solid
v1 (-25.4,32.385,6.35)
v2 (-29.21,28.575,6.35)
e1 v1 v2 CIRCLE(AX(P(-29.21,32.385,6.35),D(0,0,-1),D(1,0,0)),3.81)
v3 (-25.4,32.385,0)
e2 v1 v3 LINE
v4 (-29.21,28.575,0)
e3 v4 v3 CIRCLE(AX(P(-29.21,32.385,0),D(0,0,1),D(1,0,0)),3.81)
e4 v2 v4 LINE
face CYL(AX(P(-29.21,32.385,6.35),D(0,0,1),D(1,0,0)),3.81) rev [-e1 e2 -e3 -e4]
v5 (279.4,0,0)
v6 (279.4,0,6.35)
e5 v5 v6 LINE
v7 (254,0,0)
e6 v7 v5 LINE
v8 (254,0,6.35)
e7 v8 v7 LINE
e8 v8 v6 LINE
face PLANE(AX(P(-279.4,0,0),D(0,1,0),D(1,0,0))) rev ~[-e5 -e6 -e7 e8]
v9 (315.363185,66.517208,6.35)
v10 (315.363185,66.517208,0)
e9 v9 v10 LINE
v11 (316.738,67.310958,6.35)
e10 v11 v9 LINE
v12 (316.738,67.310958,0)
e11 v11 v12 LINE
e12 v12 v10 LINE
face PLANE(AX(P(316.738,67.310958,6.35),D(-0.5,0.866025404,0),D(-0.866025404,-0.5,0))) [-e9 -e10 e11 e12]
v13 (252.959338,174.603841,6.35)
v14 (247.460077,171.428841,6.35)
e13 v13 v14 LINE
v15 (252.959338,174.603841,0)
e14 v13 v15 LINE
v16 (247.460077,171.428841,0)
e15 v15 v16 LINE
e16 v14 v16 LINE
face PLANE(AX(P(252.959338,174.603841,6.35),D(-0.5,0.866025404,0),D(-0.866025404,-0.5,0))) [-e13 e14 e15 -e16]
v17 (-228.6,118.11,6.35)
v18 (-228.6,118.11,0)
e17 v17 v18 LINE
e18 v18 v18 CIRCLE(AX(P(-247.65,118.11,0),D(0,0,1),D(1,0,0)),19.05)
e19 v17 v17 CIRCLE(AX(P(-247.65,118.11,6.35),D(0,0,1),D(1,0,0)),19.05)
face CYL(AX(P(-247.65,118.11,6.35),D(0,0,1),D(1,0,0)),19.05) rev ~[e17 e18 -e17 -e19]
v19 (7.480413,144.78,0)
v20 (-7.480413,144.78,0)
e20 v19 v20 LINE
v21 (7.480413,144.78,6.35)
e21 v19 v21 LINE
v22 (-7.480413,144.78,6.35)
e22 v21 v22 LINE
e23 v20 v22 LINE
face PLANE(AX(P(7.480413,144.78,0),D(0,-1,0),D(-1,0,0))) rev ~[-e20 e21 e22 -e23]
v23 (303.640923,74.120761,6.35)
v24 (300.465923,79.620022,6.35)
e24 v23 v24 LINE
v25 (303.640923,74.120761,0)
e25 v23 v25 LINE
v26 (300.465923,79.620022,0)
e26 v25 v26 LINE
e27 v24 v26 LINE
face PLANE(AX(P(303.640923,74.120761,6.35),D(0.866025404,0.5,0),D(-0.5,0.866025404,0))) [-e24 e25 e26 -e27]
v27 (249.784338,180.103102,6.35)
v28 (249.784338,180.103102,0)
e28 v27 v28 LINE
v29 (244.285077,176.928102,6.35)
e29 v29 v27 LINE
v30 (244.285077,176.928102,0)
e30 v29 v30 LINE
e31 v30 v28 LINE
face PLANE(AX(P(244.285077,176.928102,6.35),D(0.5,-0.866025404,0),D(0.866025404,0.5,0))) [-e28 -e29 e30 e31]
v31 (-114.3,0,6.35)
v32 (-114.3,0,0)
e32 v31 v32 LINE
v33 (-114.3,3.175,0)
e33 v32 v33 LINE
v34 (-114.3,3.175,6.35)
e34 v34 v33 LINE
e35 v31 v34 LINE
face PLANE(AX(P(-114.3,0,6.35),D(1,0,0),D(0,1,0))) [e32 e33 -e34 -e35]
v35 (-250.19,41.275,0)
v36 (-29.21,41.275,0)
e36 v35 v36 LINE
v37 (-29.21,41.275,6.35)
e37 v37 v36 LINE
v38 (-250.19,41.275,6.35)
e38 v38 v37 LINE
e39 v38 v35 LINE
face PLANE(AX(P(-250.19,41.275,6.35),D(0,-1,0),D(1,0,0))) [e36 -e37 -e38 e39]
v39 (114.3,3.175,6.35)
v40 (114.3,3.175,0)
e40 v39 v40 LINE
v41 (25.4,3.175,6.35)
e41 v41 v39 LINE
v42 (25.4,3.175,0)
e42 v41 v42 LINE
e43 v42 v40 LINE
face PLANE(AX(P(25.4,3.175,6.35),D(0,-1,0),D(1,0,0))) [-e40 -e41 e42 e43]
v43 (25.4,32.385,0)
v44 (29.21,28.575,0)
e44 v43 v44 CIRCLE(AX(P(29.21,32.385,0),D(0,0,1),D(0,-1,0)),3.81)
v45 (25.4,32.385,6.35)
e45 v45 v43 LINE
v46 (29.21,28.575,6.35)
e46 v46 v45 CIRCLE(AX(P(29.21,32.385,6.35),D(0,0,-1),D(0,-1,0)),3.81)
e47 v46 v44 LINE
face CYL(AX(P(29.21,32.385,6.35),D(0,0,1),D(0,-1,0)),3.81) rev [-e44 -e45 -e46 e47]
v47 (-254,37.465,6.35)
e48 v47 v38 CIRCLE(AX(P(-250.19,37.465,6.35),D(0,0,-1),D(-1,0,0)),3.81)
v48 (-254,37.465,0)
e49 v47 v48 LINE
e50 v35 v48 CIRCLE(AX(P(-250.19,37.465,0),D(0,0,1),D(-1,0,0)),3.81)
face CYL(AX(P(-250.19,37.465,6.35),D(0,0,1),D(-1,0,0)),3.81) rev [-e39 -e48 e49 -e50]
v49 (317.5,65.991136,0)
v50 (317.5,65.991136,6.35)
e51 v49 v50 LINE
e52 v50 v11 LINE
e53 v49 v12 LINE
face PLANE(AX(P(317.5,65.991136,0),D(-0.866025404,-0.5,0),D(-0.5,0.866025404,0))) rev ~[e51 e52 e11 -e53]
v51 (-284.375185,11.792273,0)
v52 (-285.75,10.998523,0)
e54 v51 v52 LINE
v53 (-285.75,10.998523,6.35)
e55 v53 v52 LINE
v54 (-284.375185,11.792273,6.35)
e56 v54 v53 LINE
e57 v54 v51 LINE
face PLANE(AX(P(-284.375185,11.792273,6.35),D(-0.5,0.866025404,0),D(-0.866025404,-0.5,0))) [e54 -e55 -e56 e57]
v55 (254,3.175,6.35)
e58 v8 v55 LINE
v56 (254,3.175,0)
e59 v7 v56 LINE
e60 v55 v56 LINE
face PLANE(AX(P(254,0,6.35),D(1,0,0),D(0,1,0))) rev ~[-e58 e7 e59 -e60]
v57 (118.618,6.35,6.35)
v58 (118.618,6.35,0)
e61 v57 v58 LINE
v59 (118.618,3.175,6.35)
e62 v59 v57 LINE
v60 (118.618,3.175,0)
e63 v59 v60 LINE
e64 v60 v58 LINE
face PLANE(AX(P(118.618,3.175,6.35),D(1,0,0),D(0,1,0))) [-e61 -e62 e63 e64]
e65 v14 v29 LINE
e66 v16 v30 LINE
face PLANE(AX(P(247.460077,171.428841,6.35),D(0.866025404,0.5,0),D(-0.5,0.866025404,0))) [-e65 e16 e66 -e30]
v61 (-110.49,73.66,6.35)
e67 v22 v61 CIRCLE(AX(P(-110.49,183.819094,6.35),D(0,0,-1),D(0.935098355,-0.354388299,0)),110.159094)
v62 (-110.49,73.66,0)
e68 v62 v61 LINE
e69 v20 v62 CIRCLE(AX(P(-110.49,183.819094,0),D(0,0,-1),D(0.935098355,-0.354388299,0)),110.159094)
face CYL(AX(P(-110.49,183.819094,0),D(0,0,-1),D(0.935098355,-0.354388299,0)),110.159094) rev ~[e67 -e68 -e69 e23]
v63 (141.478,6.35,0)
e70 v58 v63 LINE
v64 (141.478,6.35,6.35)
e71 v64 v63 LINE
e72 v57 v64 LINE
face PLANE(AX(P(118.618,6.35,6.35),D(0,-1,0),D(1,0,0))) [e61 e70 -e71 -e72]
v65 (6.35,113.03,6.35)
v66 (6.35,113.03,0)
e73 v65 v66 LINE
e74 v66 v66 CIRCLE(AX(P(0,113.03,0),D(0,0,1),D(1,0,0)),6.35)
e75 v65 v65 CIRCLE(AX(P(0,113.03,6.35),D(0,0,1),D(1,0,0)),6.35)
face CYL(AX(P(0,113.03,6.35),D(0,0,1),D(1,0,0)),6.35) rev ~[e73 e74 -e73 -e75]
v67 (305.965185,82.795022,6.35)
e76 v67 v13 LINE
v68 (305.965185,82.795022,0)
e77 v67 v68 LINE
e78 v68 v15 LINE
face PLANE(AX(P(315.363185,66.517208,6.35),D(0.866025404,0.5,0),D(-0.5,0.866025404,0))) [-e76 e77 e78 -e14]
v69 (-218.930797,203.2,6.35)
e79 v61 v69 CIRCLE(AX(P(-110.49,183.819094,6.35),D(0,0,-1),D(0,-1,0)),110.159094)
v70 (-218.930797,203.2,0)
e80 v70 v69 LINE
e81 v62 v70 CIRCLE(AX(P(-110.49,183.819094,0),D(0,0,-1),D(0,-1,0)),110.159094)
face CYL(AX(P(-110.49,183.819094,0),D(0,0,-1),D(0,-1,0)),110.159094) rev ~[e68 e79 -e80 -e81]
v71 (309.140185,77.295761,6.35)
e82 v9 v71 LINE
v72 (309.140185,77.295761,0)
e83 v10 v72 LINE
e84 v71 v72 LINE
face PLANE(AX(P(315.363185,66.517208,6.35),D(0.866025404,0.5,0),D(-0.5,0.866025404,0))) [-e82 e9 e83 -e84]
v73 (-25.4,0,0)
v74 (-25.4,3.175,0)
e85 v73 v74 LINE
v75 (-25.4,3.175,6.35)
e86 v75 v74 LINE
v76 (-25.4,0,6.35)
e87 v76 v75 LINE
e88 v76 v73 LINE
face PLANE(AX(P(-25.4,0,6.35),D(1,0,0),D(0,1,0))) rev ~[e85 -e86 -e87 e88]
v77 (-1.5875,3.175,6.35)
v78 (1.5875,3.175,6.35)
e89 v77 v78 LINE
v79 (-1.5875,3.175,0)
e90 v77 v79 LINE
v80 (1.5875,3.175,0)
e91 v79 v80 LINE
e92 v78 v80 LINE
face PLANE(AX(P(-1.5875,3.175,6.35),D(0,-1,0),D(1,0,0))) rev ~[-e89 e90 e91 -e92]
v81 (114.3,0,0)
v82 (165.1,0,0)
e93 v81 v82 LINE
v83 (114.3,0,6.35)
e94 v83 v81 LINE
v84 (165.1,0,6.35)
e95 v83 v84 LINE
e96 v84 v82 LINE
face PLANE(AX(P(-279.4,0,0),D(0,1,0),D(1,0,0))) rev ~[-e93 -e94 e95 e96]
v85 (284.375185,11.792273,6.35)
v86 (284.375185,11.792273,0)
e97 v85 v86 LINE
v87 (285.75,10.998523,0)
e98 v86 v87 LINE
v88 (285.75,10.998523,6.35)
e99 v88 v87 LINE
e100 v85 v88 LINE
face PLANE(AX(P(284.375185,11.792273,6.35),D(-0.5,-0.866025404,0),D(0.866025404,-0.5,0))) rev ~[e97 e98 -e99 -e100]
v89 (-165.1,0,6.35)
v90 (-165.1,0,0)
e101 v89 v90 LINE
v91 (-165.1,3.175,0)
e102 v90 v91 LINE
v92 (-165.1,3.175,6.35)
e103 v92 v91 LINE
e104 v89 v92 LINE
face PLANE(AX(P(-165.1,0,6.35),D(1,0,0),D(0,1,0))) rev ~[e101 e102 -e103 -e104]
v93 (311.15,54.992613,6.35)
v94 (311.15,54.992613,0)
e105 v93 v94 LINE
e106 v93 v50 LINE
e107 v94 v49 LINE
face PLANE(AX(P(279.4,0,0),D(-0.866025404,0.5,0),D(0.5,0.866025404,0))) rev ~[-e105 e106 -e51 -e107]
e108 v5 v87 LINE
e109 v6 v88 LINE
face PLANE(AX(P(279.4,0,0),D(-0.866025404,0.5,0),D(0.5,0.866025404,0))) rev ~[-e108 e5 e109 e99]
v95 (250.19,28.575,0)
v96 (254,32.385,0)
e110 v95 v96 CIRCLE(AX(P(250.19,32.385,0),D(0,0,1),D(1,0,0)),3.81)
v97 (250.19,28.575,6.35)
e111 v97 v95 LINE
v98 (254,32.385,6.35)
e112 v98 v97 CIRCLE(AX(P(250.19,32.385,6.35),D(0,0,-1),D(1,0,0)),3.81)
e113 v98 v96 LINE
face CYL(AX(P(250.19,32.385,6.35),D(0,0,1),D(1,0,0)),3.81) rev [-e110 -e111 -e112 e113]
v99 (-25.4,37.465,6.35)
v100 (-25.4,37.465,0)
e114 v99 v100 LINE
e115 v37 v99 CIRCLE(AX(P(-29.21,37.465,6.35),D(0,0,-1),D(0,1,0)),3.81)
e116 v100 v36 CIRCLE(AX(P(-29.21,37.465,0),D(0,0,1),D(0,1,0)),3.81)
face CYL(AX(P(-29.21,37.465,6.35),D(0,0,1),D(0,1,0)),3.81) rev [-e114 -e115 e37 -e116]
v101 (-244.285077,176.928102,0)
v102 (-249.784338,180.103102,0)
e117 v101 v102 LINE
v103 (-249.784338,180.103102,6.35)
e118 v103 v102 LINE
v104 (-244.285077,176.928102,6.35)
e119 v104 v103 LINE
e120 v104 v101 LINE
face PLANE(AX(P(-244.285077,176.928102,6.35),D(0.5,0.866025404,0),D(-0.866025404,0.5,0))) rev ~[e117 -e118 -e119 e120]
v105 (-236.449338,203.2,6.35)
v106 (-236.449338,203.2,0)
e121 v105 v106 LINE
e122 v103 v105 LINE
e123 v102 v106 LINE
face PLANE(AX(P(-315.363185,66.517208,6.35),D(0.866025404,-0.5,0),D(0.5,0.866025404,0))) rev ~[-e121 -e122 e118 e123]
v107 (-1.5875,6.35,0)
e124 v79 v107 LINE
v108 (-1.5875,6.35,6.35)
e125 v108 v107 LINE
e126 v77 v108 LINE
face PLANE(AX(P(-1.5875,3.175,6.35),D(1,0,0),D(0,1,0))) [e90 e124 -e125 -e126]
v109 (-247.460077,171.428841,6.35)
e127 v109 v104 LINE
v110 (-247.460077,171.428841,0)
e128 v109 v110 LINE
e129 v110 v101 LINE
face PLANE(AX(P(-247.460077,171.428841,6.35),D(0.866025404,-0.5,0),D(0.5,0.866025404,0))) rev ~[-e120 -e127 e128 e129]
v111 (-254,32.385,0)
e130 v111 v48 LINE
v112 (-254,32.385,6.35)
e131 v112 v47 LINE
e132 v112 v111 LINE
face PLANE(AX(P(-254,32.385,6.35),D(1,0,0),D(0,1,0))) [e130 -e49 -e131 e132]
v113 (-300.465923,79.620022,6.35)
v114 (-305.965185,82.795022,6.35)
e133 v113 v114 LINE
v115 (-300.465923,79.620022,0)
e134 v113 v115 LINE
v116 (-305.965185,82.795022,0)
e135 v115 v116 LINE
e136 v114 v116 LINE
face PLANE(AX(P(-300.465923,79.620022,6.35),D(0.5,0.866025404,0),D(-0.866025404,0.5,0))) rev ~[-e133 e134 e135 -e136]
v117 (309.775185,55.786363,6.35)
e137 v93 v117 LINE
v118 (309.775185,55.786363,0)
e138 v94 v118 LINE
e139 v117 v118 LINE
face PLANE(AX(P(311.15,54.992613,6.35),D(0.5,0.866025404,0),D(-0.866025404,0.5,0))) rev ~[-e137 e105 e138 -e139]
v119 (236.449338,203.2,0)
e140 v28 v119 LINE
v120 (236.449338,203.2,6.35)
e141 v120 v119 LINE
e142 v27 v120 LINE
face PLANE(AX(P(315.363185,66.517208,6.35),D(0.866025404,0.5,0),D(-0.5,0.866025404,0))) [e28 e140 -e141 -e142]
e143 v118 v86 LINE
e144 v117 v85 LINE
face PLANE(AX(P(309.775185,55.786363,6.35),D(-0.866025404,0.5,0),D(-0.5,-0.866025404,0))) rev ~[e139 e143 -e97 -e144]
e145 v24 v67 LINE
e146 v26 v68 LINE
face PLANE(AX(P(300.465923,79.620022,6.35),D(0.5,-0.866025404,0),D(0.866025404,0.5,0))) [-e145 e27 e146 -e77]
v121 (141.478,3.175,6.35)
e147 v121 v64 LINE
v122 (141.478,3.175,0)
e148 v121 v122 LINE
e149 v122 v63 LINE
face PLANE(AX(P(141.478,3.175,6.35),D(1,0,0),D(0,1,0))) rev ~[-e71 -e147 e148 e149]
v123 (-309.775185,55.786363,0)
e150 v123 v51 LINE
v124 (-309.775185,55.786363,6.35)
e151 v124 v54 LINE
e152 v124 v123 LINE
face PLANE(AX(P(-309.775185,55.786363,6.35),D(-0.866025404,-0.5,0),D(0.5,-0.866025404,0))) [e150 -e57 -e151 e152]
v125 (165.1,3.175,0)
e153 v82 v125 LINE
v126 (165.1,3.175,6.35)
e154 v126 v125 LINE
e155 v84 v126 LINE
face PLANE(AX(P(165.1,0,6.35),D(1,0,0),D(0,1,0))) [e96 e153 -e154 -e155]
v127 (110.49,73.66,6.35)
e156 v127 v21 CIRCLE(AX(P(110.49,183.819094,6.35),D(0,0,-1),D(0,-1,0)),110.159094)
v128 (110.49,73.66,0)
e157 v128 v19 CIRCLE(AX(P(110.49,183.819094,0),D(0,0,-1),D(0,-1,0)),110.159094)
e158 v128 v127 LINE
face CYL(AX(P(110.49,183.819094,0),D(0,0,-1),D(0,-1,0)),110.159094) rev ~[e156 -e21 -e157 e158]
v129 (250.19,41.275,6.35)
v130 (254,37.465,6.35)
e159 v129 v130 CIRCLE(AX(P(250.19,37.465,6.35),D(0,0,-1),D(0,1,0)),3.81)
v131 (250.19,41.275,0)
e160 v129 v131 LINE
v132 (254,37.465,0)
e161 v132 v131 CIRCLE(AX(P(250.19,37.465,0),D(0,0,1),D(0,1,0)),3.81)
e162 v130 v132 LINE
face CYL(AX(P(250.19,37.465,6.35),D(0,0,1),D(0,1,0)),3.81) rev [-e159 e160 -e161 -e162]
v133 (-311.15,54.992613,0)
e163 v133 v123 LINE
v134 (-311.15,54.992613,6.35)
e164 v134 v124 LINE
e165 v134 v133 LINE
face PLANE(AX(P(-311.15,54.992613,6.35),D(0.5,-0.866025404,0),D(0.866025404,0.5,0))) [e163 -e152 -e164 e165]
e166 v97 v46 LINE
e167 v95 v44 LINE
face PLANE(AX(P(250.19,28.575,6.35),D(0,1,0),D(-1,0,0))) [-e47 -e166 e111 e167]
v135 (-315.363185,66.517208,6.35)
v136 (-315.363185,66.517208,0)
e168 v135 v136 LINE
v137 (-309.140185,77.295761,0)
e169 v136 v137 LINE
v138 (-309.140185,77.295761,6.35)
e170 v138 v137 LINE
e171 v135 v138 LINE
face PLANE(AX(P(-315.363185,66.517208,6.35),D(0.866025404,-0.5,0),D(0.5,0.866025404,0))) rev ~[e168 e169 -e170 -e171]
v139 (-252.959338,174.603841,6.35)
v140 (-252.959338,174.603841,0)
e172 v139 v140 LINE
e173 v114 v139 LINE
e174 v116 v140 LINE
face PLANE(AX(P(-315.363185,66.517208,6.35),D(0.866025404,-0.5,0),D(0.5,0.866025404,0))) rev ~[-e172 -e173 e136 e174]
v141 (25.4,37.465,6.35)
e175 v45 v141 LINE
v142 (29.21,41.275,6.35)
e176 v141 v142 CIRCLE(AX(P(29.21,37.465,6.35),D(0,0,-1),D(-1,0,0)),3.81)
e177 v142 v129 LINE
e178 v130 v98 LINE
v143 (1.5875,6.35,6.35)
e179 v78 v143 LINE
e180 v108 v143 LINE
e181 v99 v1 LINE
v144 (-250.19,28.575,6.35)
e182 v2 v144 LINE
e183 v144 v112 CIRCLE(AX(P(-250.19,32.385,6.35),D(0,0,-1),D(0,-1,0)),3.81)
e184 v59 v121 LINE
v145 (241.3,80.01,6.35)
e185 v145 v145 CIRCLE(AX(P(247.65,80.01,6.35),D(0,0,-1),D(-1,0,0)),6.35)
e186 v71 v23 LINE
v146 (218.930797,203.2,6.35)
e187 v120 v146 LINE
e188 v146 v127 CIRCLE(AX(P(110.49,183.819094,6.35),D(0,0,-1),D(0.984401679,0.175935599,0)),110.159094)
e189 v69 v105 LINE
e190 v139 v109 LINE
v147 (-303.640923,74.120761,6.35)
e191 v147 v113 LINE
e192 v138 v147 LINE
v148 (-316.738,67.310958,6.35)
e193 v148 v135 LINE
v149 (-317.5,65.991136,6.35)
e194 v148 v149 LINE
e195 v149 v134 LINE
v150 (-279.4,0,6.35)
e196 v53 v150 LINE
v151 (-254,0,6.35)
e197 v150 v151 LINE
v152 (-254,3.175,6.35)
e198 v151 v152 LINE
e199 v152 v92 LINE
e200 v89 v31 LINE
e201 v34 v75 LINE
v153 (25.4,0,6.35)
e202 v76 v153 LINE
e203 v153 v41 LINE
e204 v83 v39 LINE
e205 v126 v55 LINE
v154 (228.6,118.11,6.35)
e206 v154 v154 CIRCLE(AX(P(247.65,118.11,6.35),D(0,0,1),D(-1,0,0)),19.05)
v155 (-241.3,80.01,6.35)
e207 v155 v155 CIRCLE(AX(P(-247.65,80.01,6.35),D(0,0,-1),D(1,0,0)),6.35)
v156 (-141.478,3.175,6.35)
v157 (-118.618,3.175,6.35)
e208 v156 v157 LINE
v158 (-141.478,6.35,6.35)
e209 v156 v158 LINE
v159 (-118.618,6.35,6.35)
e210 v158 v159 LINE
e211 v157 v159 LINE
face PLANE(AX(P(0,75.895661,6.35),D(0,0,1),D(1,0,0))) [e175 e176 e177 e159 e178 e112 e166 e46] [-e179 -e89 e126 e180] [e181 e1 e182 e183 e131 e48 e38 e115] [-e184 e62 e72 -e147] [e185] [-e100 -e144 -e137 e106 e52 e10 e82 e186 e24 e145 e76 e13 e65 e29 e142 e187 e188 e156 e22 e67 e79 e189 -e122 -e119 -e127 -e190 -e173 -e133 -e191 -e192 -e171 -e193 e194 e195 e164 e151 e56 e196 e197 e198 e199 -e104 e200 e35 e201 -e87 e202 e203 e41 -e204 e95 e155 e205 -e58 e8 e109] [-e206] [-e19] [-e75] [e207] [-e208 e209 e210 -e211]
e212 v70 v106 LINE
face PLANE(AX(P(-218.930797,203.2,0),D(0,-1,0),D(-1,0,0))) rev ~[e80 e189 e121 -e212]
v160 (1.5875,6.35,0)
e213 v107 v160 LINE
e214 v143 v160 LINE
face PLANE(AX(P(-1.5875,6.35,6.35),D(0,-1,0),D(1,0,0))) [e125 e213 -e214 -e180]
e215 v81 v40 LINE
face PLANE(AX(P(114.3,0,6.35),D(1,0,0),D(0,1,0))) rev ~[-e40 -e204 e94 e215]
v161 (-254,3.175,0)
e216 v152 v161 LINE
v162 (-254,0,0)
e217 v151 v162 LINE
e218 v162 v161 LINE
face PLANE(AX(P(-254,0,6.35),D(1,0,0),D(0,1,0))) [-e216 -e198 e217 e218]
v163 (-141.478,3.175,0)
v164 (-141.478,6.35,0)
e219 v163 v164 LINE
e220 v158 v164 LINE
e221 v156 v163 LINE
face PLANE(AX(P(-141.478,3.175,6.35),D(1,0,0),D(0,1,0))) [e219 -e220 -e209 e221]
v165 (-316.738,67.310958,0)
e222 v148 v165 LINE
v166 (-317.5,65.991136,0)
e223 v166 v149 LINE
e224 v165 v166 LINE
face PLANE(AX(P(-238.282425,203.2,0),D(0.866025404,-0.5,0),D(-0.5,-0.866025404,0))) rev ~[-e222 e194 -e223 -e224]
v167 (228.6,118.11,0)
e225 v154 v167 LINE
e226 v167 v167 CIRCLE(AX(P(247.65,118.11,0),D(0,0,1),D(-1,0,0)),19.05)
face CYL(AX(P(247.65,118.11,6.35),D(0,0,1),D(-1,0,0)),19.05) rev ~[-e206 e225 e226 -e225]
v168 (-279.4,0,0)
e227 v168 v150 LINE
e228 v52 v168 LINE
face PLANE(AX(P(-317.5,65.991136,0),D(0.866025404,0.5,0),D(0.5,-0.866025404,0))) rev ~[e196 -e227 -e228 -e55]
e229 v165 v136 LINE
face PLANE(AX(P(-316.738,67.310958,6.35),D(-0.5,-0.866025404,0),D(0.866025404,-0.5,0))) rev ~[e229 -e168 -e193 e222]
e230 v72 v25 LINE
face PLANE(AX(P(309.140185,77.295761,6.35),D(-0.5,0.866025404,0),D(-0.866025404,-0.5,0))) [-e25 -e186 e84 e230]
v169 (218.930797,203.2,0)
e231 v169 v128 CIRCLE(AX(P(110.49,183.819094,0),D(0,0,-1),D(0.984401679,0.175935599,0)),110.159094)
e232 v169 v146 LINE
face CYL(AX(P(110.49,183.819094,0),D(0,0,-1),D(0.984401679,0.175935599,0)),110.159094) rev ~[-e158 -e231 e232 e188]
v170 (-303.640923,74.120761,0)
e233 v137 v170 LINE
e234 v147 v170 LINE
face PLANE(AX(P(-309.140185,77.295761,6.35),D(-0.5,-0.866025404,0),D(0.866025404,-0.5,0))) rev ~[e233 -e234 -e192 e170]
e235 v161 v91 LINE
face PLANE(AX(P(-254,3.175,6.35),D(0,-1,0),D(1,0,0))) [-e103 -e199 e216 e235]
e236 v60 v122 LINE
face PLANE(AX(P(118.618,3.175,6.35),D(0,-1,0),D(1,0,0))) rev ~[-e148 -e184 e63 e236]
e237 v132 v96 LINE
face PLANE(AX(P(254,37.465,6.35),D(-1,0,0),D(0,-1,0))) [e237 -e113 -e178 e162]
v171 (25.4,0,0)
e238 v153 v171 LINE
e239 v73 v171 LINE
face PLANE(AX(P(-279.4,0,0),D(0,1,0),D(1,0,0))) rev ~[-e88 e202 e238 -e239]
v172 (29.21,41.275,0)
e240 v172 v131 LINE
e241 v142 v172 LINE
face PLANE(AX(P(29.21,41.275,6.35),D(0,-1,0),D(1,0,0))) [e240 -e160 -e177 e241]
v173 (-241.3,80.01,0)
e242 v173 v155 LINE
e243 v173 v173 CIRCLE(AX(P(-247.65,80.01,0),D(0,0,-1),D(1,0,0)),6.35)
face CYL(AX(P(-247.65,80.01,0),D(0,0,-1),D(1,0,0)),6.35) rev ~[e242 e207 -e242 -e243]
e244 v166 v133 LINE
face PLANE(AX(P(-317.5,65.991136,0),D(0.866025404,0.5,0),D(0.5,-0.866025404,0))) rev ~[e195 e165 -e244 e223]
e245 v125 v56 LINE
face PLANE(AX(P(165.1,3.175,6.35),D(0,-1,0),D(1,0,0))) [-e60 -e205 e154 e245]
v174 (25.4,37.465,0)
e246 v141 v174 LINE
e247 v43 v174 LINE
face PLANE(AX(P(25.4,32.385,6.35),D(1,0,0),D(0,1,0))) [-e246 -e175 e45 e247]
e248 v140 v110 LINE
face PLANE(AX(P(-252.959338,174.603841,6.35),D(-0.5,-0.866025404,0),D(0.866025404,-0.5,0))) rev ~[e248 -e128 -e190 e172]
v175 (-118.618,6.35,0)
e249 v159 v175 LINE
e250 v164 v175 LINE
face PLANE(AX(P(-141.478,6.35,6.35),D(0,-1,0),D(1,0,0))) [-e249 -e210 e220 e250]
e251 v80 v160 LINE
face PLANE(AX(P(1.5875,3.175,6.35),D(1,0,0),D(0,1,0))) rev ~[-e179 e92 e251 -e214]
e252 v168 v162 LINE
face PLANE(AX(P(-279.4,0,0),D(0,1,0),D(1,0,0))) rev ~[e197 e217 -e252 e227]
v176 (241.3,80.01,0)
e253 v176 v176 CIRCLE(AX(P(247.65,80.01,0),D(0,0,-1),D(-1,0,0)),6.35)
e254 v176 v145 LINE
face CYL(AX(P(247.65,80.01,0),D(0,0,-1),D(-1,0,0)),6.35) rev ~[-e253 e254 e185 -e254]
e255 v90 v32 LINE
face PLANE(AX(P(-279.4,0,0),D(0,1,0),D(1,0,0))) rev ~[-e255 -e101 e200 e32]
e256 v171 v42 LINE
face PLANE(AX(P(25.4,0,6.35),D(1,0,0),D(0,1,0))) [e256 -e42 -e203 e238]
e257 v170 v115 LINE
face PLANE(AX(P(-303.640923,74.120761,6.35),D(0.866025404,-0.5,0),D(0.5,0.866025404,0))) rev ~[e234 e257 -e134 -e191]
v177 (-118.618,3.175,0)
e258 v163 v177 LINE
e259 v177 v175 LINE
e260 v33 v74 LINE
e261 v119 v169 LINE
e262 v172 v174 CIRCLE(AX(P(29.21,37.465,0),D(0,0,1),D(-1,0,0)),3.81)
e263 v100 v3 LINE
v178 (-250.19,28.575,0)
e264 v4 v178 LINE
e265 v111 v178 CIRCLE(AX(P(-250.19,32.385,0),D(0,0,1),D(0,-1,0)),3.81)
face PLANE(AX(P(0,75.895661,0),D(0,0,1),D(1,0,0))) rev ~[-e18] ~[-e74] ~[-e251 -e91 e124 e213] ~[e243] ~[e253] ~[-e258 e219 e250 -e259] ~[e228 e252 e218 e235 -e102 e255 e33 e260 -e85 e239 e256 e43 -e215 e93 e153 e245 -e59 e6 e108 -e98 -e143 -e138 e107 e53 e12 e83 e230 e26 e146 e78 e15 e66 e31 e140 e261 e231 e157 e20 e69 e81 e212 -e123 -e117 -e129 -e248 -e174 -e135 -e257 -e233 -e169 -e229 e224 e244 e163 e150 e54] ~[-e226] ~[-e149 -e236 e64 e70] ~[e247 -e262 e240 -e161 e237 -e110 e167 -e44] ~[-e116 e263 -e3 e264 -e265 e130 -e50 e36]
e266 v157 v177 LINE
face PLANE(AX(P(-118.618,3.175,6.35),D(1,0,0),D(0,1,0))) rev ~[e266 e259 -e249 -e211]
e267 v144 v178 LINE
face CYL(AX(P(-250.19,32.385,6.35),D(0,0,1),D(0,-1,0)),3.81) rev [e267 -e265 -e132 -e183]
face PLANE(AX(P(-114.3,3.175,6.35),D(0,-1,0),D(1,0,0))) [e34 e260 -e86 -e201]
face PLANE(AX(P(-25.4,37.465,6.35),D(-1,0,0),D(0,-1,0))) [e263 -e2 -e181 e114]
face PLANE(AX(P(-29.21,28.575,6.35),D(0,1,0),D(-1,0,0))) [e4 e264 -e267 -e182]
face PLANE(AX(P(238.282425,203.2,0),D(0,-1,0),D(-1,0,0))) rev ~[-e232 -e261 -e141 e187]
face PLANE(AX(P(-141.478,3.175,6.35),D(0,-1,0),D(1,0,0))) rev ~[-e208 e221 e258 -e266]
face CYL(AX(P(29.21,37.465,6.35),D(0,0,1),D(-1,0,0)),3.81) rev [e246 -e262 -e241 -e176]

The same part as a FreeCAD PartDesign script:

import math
import FreeCAD as App
import Part
import Sketcher

V = App.Vector
Q = App.Units.Quantity

doc = App.newDocument("Part")
body = doc.addObject("PartDesign::Body", "Body")

# Sketch on XY plane
sketch1 = doc.addObject("Sketcher::SketchObject", "Sketch")
body.addObject(sketch1)
sketch1.AttachmentSupport = (doc.XY_Plane, [""])
sketch1.MapMode = "FlatFace"
sketch1.addGeometry(Part.LineSegment(V(-317.5, 65.991136, 0), V(-279.4, 0, 0)), False)
sketch1.addGeometry(Part.LineSegment(V(-279.4, 0, 0), V(279.4, 0, 0)), False)
sketch1.addGeometry(Part.LineSegment(V(279.4, 0, 0), V(317.5, 65.991136, 0)), False)
sketch1.addGeometry(Part.LineSegment(V(317.5, 65.991136, 0), V(238.282425, 203.2, 0)), False)
sketch1.addGeometry(Part.LineSegment(V(238.282425, 203.2, 0), V(218.930797, 203.2, 0)), False)
sketch1.addGeometry(Part.ArcOfCircle(Part.Circle(V(110.49, 183.819094, 0), V(0, 0, 1), 110.159094), math.radians(-90), math.radians(10.133109)), False)
sketch1.addGeometry(Part.ArcOfCircle(Part.Circle(V(110.49, 183.819094, 0), V(0, 0, 1), 110.159094), math.radians(-159.244041), math.radians(-90)), False)
sketch1.addGeometry(Part.LineSegment(V(7.480413, 144.78, 0), V(-7.480413, 144.78, 0)), False)
sketch1.addGeometry(Part.ArcOfCircle(Part.Circle(V(-110.49, 183.819094, 0), V(0, 0, 1), 110.159094), math.radians(-90), math.radians(-20.755959)), False)
sketch1.addGeometry(Part.ArcOfCircle(Part.Circle(V(-110.49, 183.819094, 0), V(0, 0, 1), 110.159094), math.radians(169.866891), math.radians(270)), False)
sketch1.addGeometry(Part.LineSegment(V(-218.930797, 203.2, 0), V(-238.282425, 203.2, 0)), False)
sketch1.addGeometry(Part.LineSegment(V(-238.282425, 203.2, 0), V(-317.5, 65.991136, 0)), False)
sketch1.addConstraint(Sketcher.Constraint("Coincident", 0, 2, 1, 1))
sketch1.addConstraint(Sketcher.Constraint("Coincident", 1, 2, 2, 1))
sketch1.addConstraint(Sketcher.Constraint("Coincident", 2, 2, 3, 1))
sketch1.addConstraint(Sketcher.Constraint("Coincident", 3, 2, 4, 1))
sketch1.addConstraint(Sketcher.Constraint("Coincident", 4, 2, 5, 2))
sketch1.addConstraint(Sketcher.Constraint("Tangent", 5, 1, 6, 2))
sketch1.addConstraint(Sketcher.Constraint("Coincident", 6, 1, 7, 1))
sketch1.addConstraint(Sketcher.Constraint("Coincident", 7, 2, 8, 2))
sketch1.addConstraint(Sketcher.Constraint("Tangent", 8, 1, 9, 2))
sketch1.addConstraint(Sketcher.Constraint("Coincident", 9, 1, 10, 1))
sketch1.addConstraint(Sketcher.Constraint("Coincident", 10, 2, 11, 1))
sketch1.addConstraint(Sketcher.Constraint("Coincident", 11, 2, 0, 1))
sketch1.addConstraint(Sketcher.Constraint("Horizontal", 1))
sketch1.addConstraint(Sketcher.Constraint("Horizontal", 4))
sketch1.addConstraint(Sketcher.Constraint("Horizontal", 7))
sketch1.addConstraint(Sketcher.Constraint("Horizontal", 10))
sketch1.addConstraint(Sketcher.Constraint("Equal", 5, 6))
sketch1.addConstraint(Sketcher.Constraint("Equal", 6, 8))
sketch1.addConstraint(Sketcher.Constraint("Equal", 8, 9))
sketch1.addConstraint(Sketcher.Constraint("Symmetric", 0, 2, 1, 2, -1, 1))
sketch1.addConstraint(Sketcher.Constraint("Symmetric", 5, 3, 8, 3, -2))
sketch1.addConstraint(Sketcher.Constraint("Symmetric", 3, 2, 10, 2, -2))
sketch1.addConstraint(Sketcher.Constraint("Symmetric", 2, 2, 11, 2, -2))
sketch1.addConstraint(Sketcher.Constraint("Parallel", 0, 3))
sketch1.addConstraint(Sketcher.Constraint("Vertical", 6, 3, 5, 1))
sketch1.addConstraint(Sketcher.Constraint("Vertical", 9, 3, 8, 1))
sketch1.addConstraint(Sketcher.Constraint("DistanceX", 1, 1, 1, 2, Q("22 in")))
sketch1.addConstraint(Sketcher.Constraint("Distance", 0, Q("3 in")))
sketch1.addConstraint(Sketcher.Constraint("DistanceY", -1, 1, 3, 2, Q("8 in")))
sketch1.addConstraint(Sketcher.Constraint("Angle", 0, Q("-60 deg")))
sketch1.addConstraint(Sketcher.Constraint("DistanceY", -1, 1, 5, 1, Q("2.9 in")))
sketch1.addConstraint(Sketcher.Constraint("DistanceY", -1, 1, 6, 1, Q("5.7 in")))
sketch1.addConstraint(Sketcher.Constraint("DistanceX", 8, 3, 5, 3, Q("8.7 in")))
sketch1.addConstraint(Sketcher.Constraint("Radius", 5, Q("110.159094 mm")))
pad1 = doc.addObject("PartDesign::Pad", "Pad")
body.addObject(pad1)
pad1.Profile = sketch1
pad1.Length = Q("0.25 in")

# Sketch on XY plane
sketch2 = doc.addObject("Sketcher::SketchObject", "Sketch001")
body.addObject(sketch2)
sketch2.AttachmentSupport = (doc.XY_Plane, [""])
sketch2.MapMode = "FlatFace"
sketch2.AttachmentOffset = App.Placement(V(0, 0, 0.25 * 25.4), App.Rotation())
sketch2.addGeometry(Part.LineSegment(V(-254, 3.175, 0), V(-254, 0, 0)), False)
sketch2.addGeometry(Part.LineSegment(V(-254, 0, 0), V(-165.1, 0, 0)), False)
sketch2.addGeometry(Part.LineSegment(V(-165.1, 0, 0), V(-165.1, 3.175, 0)), False)
sketch2.addGeometry(Part.LineSegment(V(-165.1, 3.175, 0), V(-254, 3.175, 0)), False)
sketch2.addGeometry(Part.LineSegment(V(-114.3, 3.175, 0), V(-114.3, 0, 0)), False)
sketch2.addGeometry(Part.LineSegment(V(-114.3, 0, 0), V(-25.4, 0, 0)), False)
sketch2.addGeometry(Part.LineSegment(V(-25.4, 0, 0), V(-25.4, 3.175, 0)), False)
sketch2.addGeometry(Part.LineSegment(V(-25.4, 3.175, 0), V(-114.3, 3.175, 0)), False)
sketch2.addGeometry(Part.LineSegment(V(25.4, 3.175, 0), V(25.4, 0, 0)), False)
sketch2.addGeometry(Part.LineSegment(V(25.4, 0, 0), V(114.3, 0, 0)), False)
sketch2.addGeometry(Part.LineSegment(V(114.3, 0, 0), V(114.3, 3.175, 0)), False)
sketch2.addGeometry(Part.LineSegment(V(114.3, 3.175, 0), V(25.4, 3.175, 0)), False)
sketch2.addGeometry(Part.LineSegment(V(165.1, 3.175, 0), V(165.1, 0, 0)), False)
sketch2.addGeometry(Part.LineSegment(V(165.1, 0, 0), V(254, 0, 0)), False)
sketch2.addGeometry(Part.LineSegment(V(254, 0, 0), V(254, 3.175, 0)), False)
sketch2.addGeometry(Part.LineSegment(V(254, 3.175, 0), V(165.1, 3.175, 0)), False)
sketch2.addConstraint(Sketcher.Constraint("Coincident", 0, 2, 1, 1))
sketch2.addConstraint(Sketcher.Constraint("Coincident", 1, 2, 2, 1))
sketch2.addConstraint(Sketcher.Constraint("Coincident", 2, 2, 3, 1))
sketch2.addConstraint(Sketcher.Constraint("Coincident", 3, 2, 0, 1))
sketch2.addConstraint(Sketcher.Constraint("Coincident", 4, 2, 5, 1))
sketch2.addConstraint(Sketcher.Constraint("Coincident", 5, 2, 6, 1))
sketch2.addConstraint(Sketcher.Constraint("Coincident", 6, 2, 7, 1))
sketch2.addConstraint(Sketcher.Constraint("Coincident", 7, 2, 4, 1))
sketch2.addConstraint(Sketcher.Constraint("Coincident", 8, 2, 9, 1))
sketch2.addConstraint(Sketcher.Constraint("Coincident", 9, 2, 10, 1))
sketch2.addConstraint(Sketcher.Constraint("Coincident", 10, 2, 11, 1))
sketch2.addConstraint(Sketcher.Constraint("Coincident", 11, 2, 8, 1))
sketch2.addConstraint(Sketcher.Constraint("Coincident", 12, 2, 13, 1))
sketch2.addConstraint(Sketcher.Constraint("Coincident", 13, 2, 14, 1))
sketch2.addConstraint(Sketcher.Constraint("Coincident", 14, 2, 15, 1))
sketch2.addConstraint(Sketcher.Constraint("Coincident", 15, 2, 12, 1))
sketch2.addConstraint(Sketcher.Constraint("Vertical", 0))
sketch2.addConstraint(Sketcher.Constraint("Horizontal", 1))
sketch2.addConstraint(Sketcher.Constraint("Vertical", 2))
sketch2.addConstraint(Sketcher.Constraint("Horizontal", 3))
sketch2.addConstraint(Sketcher.Constraint("Vertical", 4))
sketch2.addConstraint(Sketcher.Constraint("Horizontal", 5))
sketch2.addConstraint(Sketcher.Constraint("Vertical", 6))
sketch2.addConstraint(Sketcher.Constraint("Horizontal", 7))
sketch2.addConstraint(Sketcher.Constraint("Vertical", 8))
sketch2.addConstraint(Sketcher.Constraint("Horizontal", 9))
sketch2.addConstraint(Sketcher.Constraint("Vertical", 10))
sketch2.addConstraint(Sketcher.Constraint("Horizontal", 11))
sketch2.addConstraint(Sketcher.Constraint("Vertical", 12))
sketch2.addConstraint(Sketcher.Constraint("Horizontal", 13))
sketch2.addConstraint(Sketcher.Constraint("Vertical", 14))
sketch2.addConstraint(Sketcher.Constraint("Horizontal", 15))
sketch2.addConstraint(Sketcher.Constraint("Symmetric", 5, 2, 8, 2, -1, 1))
sketch2.addConstraint(Sketcher.Constraint("Symmetric", 1, 2, 12, 2, -1, 1))
sketch2.addConstraint(Sketcher.Constraint("Symmetric", 4, 2, 9, 2, -2))
sketch2.addConstraint(Sketcher.Constraint("Symmetric", 0, 2, 13, 2, -2))
sketch2.addConstraint(Sketcher.Constraint("Horizontal", 3, 2, 6, 2))
sketch2.addConstraint(Sketcher.Constraint("Horizontal", 7, 2, 10, 2))
sketch2.addConstraint(Sketcher.Constraint("Horizontal", 11, 2, 14, 2))
sketch2.addConstraint(Sketcher.Constraint("Equal", 3, 5))
sketch2.addConstraint(Sketcher.Constraint("DistanceX", 1, 1, 1, 2, Q("3.5 in")))
sketch2.addConstraint(Sketcher.Constraint("DistanceX", 0, 2, -1, 1, Q("10 in")))
sketch2.addConstraint(Sketcher.Constraint("DistanceX", 5, 2, -1, 1, Q("1 in")))
sketch2.addConstraint(Sketcher.Constraint("DistanceY", 0, 2, 0, 1, Q("0.125 in")))
pocket1 = doc.addObject("PartDesign::Pocket", "Pocket")
body.addObject(pocket1)
pocket1.Profile = sketch2
pocket1.Type = "ThroughAll"

# Sketch on XY plane
sketch3 = doc.addObject("Sketcher::SketchObject", "Sketch002")
body.addObject(sketch3)
sketch3.AttachmentSupport = (doc.XY_Plane, [""])
sketch3.MapMode = "FlatFace"
sketch3.AttachmentOffset = App.Placement(V(0, 0, 0.25 * 25.4), App.Rotation())
sketch3.addGeometry(Part.LineSegment(V(-309.775185, 55.786363, 0), V(-311.15, 54.992613, 0)), False)
sketch3.addGeometry(Part.LineSegment(V(-311.15, 54.992613, 0), V(-285.75, 10.998523, 0)), False)
sketch3.addGeometry(Part.LineSegment(V(-285.75, 10.998523, 0), V(-284.375185, 11.792273, 0)), False)
sketch3.addGeometry(Part.LineSegment(V(-284.375185, 11.792273, 0), V(-309.775185, 55.786363, 0)), False)
sketch3.addGeometry(Part.LineSegment(V(285.75, 10.998523, 0), V(311.15, 54.992613, 0)), False)
sketch3.addGeometry(Part.LineSegment(V(311.15, 54.992613, 0), V(309.775185, 55.786363, 0)), False)
sketch3.addGeometry(Part.LineSegment(V(309.775185, 55.786363, 0), V(284.375185, 11.792273, 0)), False)
sketch3.addGeometry(Part.LineSegment(V(284.375185, 11.792273, 0), V(285.75, 10.998523, 0)), False)
sketch3.addConstraint(Sketcher.Constraint("Coincident", 0, 2, 1, 1))
sketch3.addConstraint(Sketcher.Constraint("Coincident", 1, 2, 2, 1))
sketch3.addConstraint(Sketcher.Constraint("Coincident", 2, 2, 3, 1))
sketch3.addConstraint(Sketcher.Constraint("Coincident", 3, 2, 0, 1))
sketch3.addConstraint(Sketcher.Constraint("Coincident", 4, 2, 5, 1))
sketch3.addConstraint(Sketcher.Constraint("Coincident", 5, 2, 6, 1))
sketch3.addConstraint(Sketcher.Constraint("Coincident", 6, 2, 7, 1))
sketch3.addConstraint(Sketcher.Constraint("Coincident", 7, 2, 4, 1))
sketch3.addConstraint(Sketcher.Constraint("Symmetric", 0, 2, 4, 2, -2))
sketch3.addConstraint(Sketcher.Constraint("Symmetric", 3, 2, 5, 2, -2))
sketch3.addConstraint(Sketcher.Constraint("Symmetric", 2, 2, 6, 2, -2))
sketch3.addConstraint(Sketcher.Constraint("Symmetric", 1, 2, 7, 2, -2))
sketch3.addConstraint(Sketcher.Constraint("Perpendicular", 0, 1))
sketch3.addConstraint(Sketcher.Constraint("Perpendicular", 1, 2))
sketch3.addConstraint(Sketcher.Constraint("Perpendicular", 2, 3))
sketch3.addConstraint(Sketcher.Constraint("Distance", 1, Q("2 in")))
sketch3.addConstraint(Sketcher.Constraint("Angle", 0, Q("-150 deg")))
sketch3.addConstraint(Sketcher.Constraint("DistanceX", 1, 2, 4, 2, Q("23.5 in")))
sketch3.addConstraint(Sketcher.Constraint("Distance", 0, Q("0.0625 in")))
sketch3.addConstraint(Sketcher.Constraint("DistanceY", -1, 1, 0, 2, Q("54.992613 mm")))
pocket2 = doc.addObject("PartDesign::Pocket", "Pocket001")
body.addObject(pocket2)
pocket2.Profile = sketch3
pocket2.Type = "ThroughAll"

# Sketch on XY plane
sketch4 = doc.addObject("Sketcher::SketchObject", "Sketch003")
body.addObject(sketch4)
sketch4.AttachmentSupport = (doc.XY_Plane, [""])
sketch4.MapMode = "FlatFace"
sketch4.AttachmentOffset = App.Placement(V(0, 0, 0.25 * 25.4), App.Rotation())
sketch4.addGeometry(Part.LineSegment(V(-315.363185, 66.517208, 0), V(-236.449338, 203.2, 0)), False)
sketch4.addGeometry(Part.LineSegment(V(-236.449338, 203.2, 0), V(-238.282425, 203.2, 0)), False)
sketch4.addGeometry(Part.LineSegment(V(-238.282425, 203.2, 0), V(-316.738, 67.310958, 0)), False)
sketch4.addGeometry(Part.LineSegment(V(-316.738, 67.310958, 0), V(-315.363185, 66.517208, 0)), False)
sketch4.addGeometry(Part.LineSegment(V(315.363185, 66.517208, 0), V(316.738, 67.310958, 0)), False)
sketch4.addGeometry(Part.LineSegment(V(316.738, 67.310958, 0), V(238.282425, 203.2, 0)), False)
sketch4.addGeometry(Part.LineSegment(V(238.282425, 203.2, 0), V(236.449338, 203.2, 0)), False)
sketch4.addGeometry(Part.LineSegment(V(236.449338, 203.2, 0), V(315.363185, 66.517208, 0)), False)
sketch4.addConstraint(Sketcher.Constraint("Coincident", 0, 2, 1, 1))
sketch4.addConstraint(Sketcher.Constraint("Coincident", 1, 2, 2, 1))
sketch4.addConstraint(Sketcher.Constraint("Coincident", 2, 2, 3, 1))
sketch4.addConstraint(Sketcher.Constraint("Coincident", 3, 2, 0, 1))
sketch4.addConstraint(Sketcher.Constraint("Coincident", 4, 2, 5, 1))
sketch4.addConstraint(Sketcher.Constraint("Coincident", 5, 2, 6, 1))
sketch4.addConstraint(Sketcher.Constraint("Coincident", 6, 2, 7, 1))
sketch4.addConstraint(Sketcher.Constraint("Coincident", 7, 2, 4, 1))
sketch4.addConstraint(Sketcher.Constraint("Horizontal", 1))
sketch4.addConstraint(Sketcher.Constraint("Horizontal", 6))
sketch4.addConstraint(Sketcher.Constraint("Symmetric", 2, 2, 4, 2, -2))
sketch4.addConstraint(Sketcher.Constraint("Symmetric", 1, 2, 5, 2, -2))
sketch4.addConstraint(Sketcher.Constraint("Symmetric", 3, 2, 7, 2, -2))
sketch4.addConstraint(Sketcher.Constraint("Parallel", 0, 2))
sketch4.addConstraint(Sketcher.Constraint("Perpendicular", 2, 3))
sketch4.addConstraint(Sketcher.Constraint("Parallel", 5, 7))
sketch4.addConstraint(Sketcher.Constraint("DistanceY", -1, 1, 0, 2, Q("8 in")))
sketch4.addConstraint(Sketcher.Constraint("Angle", 0, Q("60 deg")))
sketch4.addConstraint(Sketcher.Constraint("DistanceX", 2, 2, -1, 1, Q("12.47 in")))
sketch4.addConstraint(Sketcher.Constraint("Distance", 3, Q("0.0625 in")))
sketch4.addConstraint(Sketcher.Constraint("Distance", 2, Q("156.911149 mm")))
pocket3 = doc.addObject("PartDesign::Pocket", "Pocket002")
body.addObject(pocket3)
pocket3.Profile = sketch4
pocket3.Type = "ThroughAll"

# Sketch on XY plane
sketch5 = doc.addObject("Sketcher::SketchObject", "Sketch004")
body.addObject(sketch5)
sketch5.AttachmentSupport = (doc.XY_Plane, [""])
sketch5.MapMode = "FlatFace"
sketch5.AttachmentOffset = App.Placement(V(0, 0, 0.25 * 25.4), App.Rotation())
sketch5.addGeometry(Part.LineSegment(V(-252.959338, 174.603841, 0), V(-247.460077, 171.428841, 0)), False)
sketch5.addGeometry(Part.LineSegment(V(-247.460077, 171.428841, 0), V(-244.285077, 176.928102, 0)), False)
sketch5.addGeometry(Part.LineSegment(V(-244.285077, 176.928102, 0), V(-249.784338, 180.103102, 0)), False)
sketch5.addGeometry(Part.LineSegment(V(-249.784338, 180.103102, 0), V(-252.959338, 174.603841, 0)), False)
sketch5.addGeometry(Part.LineSegment(V(252.959338, 174.603841, 0), V(249.784338, 180.103102, 0)), False)
sketch5.addGeometry(Part.LineSegment(V(249.784338, 180.103102, 0), V(244.285077, 176.928102, 0)), False)
sketch5.addGeometry(Part.LineSegment(V(244.285077, 176.928102, 0), V(247.460077, 171.428841, 0)), False)
sketch5.addGeometry(Part.LineSegment(V(247.460077, 171.428841, 0), V(252.959338, 174.603841, 0)), False)
sketch5.addGeometry(Part.LineSegment(V(-303.640923, 74.120761, 0), V(-300.465923, 79.620022, 0)), False)
sketch5.addGeometry(Part.LineSegment(V(-300.465923, 79.620022, 0), V(-305.965185, 82.795022, 0)), False)
sketch5.addGeometry(Part.LineSegment(V(-305.965185, 82.795022, 0), V(-309.140185, 77.295761, 0)), False)
sketch5.addGeometry(Part.LineSegment(V(-309.140185, 77.295761, 0), V(-303.640923, 74.120761, 0)), False)
sketch5.addGeometry(Part.LineSegment(V(309.140185, 77.295761, 0), V(305.965185, 82.795022, 0)), False)
sketch5.addGeometry(Part.LineSegment(V(305.965185, 82.795022, 0), V(300.465923, 79.620022, 0)), False)
sketch5.addGeometry(Part.LineSegment(V(300.465923, 79.620022, 0), V(303.640923, 74.120761, 0)), False)
sketch5.addGeometry(Part.LineSegment(V(303.640923, 74.120761, 0), V(309.140185, 77.295761, 0)), False)
sketch5.addConstraint(Sketcher.Constraint("Coincident", 0, 2, 1, 1))
sketch5.addConstraint(Sketcher.Constraint("Coincident", 1, 2, 2, 1))
sketch5.addConstraint(Sketcher.Constraint("Coincident", 2, 2, 3, 1))
sketch5.addConstraint(Sketcher.Constraint("Coincident", 3, 2, 0, 1))
sketch5.addConstraint(Sketcher.Constraint("Coincident", 4, 2, 5, 1))
sketch5.addConstraint(Sketcher.Constraint("Coincident", 5, 2, 6, 1))
sketch5.addConstraint(Sketcher.Constraint("Coincident", 6, 2, 7, 1))
sketch5.addConstraint(Sketcher.Constraint("Coincident", 7, 2, 4, 1))
sketch5.addConstraint(Sketcher.Constraint("Coincident", 8, 2, 9, 1))
sketch5.addConstraint(Sketcher.Constraint("Coincident", 9, 2, 10, 1))
sketch5.addConstraint(Sketcher.Constraint("Coincident", 10, 2, 11, 1))
sketch5.addConstraint(Sketcher.Constraint("Coincident", 11, 2, 8, 1))
sketch5.addConstraint(Sketcher.Constraint("Coincident", 12, 2, 13, 1))
sketch5.addConstraint(Sketcher.Constraint("Coincident", 13, 2, 14, 1))
sketch5.addConstraint(Sketcher.Constraint("Coincident", 14, 2, 15, 1))
sketch5.addConstraint(Sketcher.Constraint("Coincident", 15, 2, 12, 1))
sketch5.addConstraint(Sketcher.Constraint("Symmetric", 2, 2, 4, 2, -2))
sketch5.addConstraint(Sketcher.Constraint("Symmetric", 1, 2, 5, 2, -2))
sketch5.addConstraint(Sketcher.Constraint("Symmetric", 0, 2, 6, 2, -2))
sketch5.addConstraint(Sketcher.Constraint("Symmetric", 3, 2, 7, 2, -2))
sketch5.addConstraint(Sketcher.Constraint("Symmetric", 9, 2, 12, 2, -2))
sketch5.addConstraint(Sketcher.Constraint("Symmetric", 8, 2, 13, 2, -2))
sketch5.addConstraint(Sketcher.Constraint("Symmetric", 11, 2, 14, 2, -2))
sketch5.addConstraint(Sketcher.Constraint("Symmetric", 10, 2, 15, 2, -2))
sketch5.addConstraint(Sketcher.Constraint("Perpendicular", 0, 1))
sketch5.addConstraint(Sketcher.Constraint("Perpendicular", 1, 2))
sketch5.addConstraint(Sketcher.Constraint("Perpendicular", 2, 3))
sketch5.addConstraint(Sketcher.Constraint("Parallel", 3, 8))
sketch5.addConstraint(Sketcher.Constraint("Perpendicular", 8, 9))
sketch5.addConstraint(Sketcher.Constraint("Perpendicular", 9, 10))
sketch5.addConstraint(Sketcher.Constraint("Perpendicular", 10, 11))
sketch5.addConstraint(Sketcher.Constraint("Equal", 0, 1))
sketch5.addConstraint(Sketcher.Constraint("Equal", 7, 8))
sketch5.addConstraint(Sketcher.Constraint("Equal", 8, 9))
sketch5.addConstraint(Sketcher.Constraint("Angle", 0, Q("-30 deg")))
sketch5.addConstraint(Sketcher.Constraint("Distance", 0, Q("0.25 in")))
sketch5.addConstraint(Sketcher.Constraint("DistanceX", 8, 2, 5, 2, Q("544.751 mm")))
sketch5.addConstraint(Sketcher.Constraint("DistanceY", -1, 1, 0, 2, Q("171.428841 mm")))
sketch5.addConstraint(Sketcher.Constraint("DistanceX", 2, 2, -1, 1, Q("249.784338 mm")))
sketch5.addConstraint(Sketcher.Constraint("DistanceY", -1, 1, 8, 2, Q("79.620022 mm")))
pocket4 = doc.addObject("PartDesign::Pocket", "Pocket003")
body.addObject(pocket4)
pocket4.Profile = sketch5
pocket4.Type = "ThroughAll"

# Sketch on XY plane
sketch6 = doc.addObject("Sketcher::SketchObject", "Sketch005")
body.addObject(sketch6)
sketch6.AttachmentSupport = (doc.XY_Plane, [""])
sketch6.MapMode = "FlatFace"
sketch6.AttachmentOffset = App.Placement(V(0, 0, 0.25 * 25.4), App.Rotation())
sketch6.addGeometry(Part.LineSegment(V(-141.478, 6.35, 0), V(-141.478, 3.175, 0)), False)
sketch6.addGeometry(Part.LineSegment(V(-141.478, 3.175, 0), V(-118.618, 3.175, 0)), False)
sketch6.addGeometry(Part.LineSegment(V(-118.618, 3.175, 0), V(-118.618, 6.35, 0)), False)
sketch6.addGeometry(Part.LineSegment(V(-118.618, 6.35, 0), V(-141.478, 6.35, 0)), False)
sketch6.addGeometry(Part.LineSegment(V(118.618, 6.35, 0), V(118.618, 3.175, 0)), False)
sketch6.addGeometry(Part.LineSegment(V(118.618, 3.175, 0), V(141.478, 3.175, 0)), False)
sketch6.addGeometry(Part.LineSegment(V(141.478, 3.175, 0), V(141.478, 6.35, 0)), False)
sketch6.addGeometry(Part.LineSegment(V(141.478, 6.35, 0), V(118.618, 6.35, 0)), False)
sketch6.addGeometry(Part.LineSegment(V(-1.5875, 6.35, 0), V(-1.5875, 3.175, 0)), False)
sketch6.addGeometry(Part.LineSegment(V(-1.5875, 3.175, 0), V(1.5875, 3.175, 0)), False)
sketch6.addGeometry(Part.LineSegment(V(1.5875, 3.175, 0), V(1.5875, 6.35, 0)), False)
sketch6.addGeometry(Part.LineSegment(V(1.5875, 6.35, 0), V(-1.5875, 6.35, 0)), False)
sketch6.addConstraint(Sketcher.Constraint("Coincident", 0, 2, 1, 1))
sketch6.addConstraint(Sketcher.Constraint("Coincident", 1, 2, 2, 1))
sketch6.addConstraint(Sketcher.Constraint("Coincident", 2, 2, 3, 1))
sketch6.addConstraint(Sketcher.Constraint("Coincident", 3, 2, 0, 1))
sketch6.addConstraint(Sketcher.Constraint("Coincident", 4, 2, 5, 1))
sketch6.addConstraint(Sketcher.Constraint("Coincident", 5, 2, 6, 1))
sketch6.addConstraint(Sketcher.Constraint("Coincident", 6, 2, 7, 1))
sketch6.addConstraint(Sketcher.Constraint("Coincident", 7, 2, 4, 1))
sketch6.addConstraint(Sketcher.Constraint("Coincident", 8, 2, 9, 1))
sketch6.addConstraint(Sketcher.Constraint("Coincident", 9, 2, 10, 1))
sketch6.addConstraint(Sketcher.Constraint("Coincident", 10, 2, 11, 1))
sketch6.addConstraint(Sketcher.Constraint("Coincident", 11, 2, 8, 1))
sketch6.addConstraint(Sketcher.Constraint("Vertical", 0))
sketch6.addConstraint(Sketcher.Constraint("Horizontal", 1))
sketch6.addConstraint(Sketcher.Constraint("Vertical", 2))
sketch6.addConstraint(Sketcher.Constraint("Horizontal", 3))
sketch6.addConstraint(Sketcher.Constraint("Vertical", 4))
sketch6.addConstraint(Sketcher.Constraint("Horizontal", 5))
sketch6.addConstraint(Sketcher.Constraint("Vertical", 6))
sketch6.addConstraint(Sketcher.Constraint("Horizontal", 7))
sketch6.addConstraint(Sketcher.Constraint("Vertical", 8))
sketch6.addConstraint(Sketcher.Constraint("Horizontal", 9))
sketch6.addConstraint(Sketcher.Constraint("Vertical", 10))
sketch6.addConstraint(Sketcher.Constraint("Horizontal", 11))
sketch6.addConstraint(Sketcher.Constraint("Symmetric", 1, 2, 4, 2, -2))
sketch6.addConstraint(Sketcher.Constraint("Symmetric", 3, 2, 6, 2, -2))
sketch6.addConstraint(Sketcher.Constraint("Horizontal", 5, 2, 8, 2))
sketch6.addConstraint(Sketcher.Constraint("Horizontal", 7, 2, 10, 2))
sketch6.addConstraint(Sketcher.Constraint("Equal", 11, 0))
sketch6.addConstraint(Sketcher.Constraint("DistanceX", 1, 1, 1, 2, Q("0.9 in")))
sketch6.addConstraint(Sketcher.Constraint("DistanceX", 9, 1, 9, 2, Q("0.125 in")))
sketch6.addConstraint(Sketcher.Constraint("DistanceX", 0, 2, -1, 1, Q("5.57 in")))
sketch6.addConstraint(Sketcher.Constraint("DistanceY", -1, 1, 2, 2, Q("0.25 in")))
sketch6.addConstraint(Sketcher.Constraint("DistanceX", 8, 2, -1, 1, Q("0.0625 in")))
pocket5 = doc.addObject("PartDesign::Pocket", "Pocket004")
body.addObject(pocket5)
pocket5.Profile = sketch6
pocket5.Type = "ThroughAll"

# Sketch on XY plane
sketch7 = doc.addObject("Sketcher::SketchObject", "Sketch006")
body.addObject(sketch7)
sketch7.AttachmentSupport = (doc.XY_Plane, [""])
sketch7.MapMode = "FlatFace"
sketch7.addGeometry(Part.Circle(V(247.65, 80.01, 0), V(0, 0, 1), 6.35), False)
sketch7.addConstraint(Sketcher.Constraint("Diameter", 0, Q("0.5 in")))
sketch7.addConstraint(Sketcher.Constraint("DistanceX", -1, 1, 0, 3, Q("9.75 in")))
sketch7.addConstraint(Sketcher.Constraint("DistanceY", -1, 1, 0, 3, Q("3.15 in")))
pocket6 = doc.addObject("PartDesign::Pocket", "Pocket005")
body.addObject(pocket6)
pocket6.Profile = sketch7
pocket6.Type = "UpToFirst"
pocket6.Reversed = True

# Sketch on XY plane
sketch8 = doc.addObject("Sketcher::SketchObject", "Sketch007")
body.addObject(sketch8)
sketch8.AttachmentSupport = (doc.XY_Plane, [""])
sketch8.MapMode = "FlatFace"
sketch8.addGeometry(Part.Circle(V(-247.65, 80.01, 0), V(0, 0, 1), 6.35), False)
sketch8.addConstraint(Sketcher.Constraint("Diameter", 0, Q("0.5 in")))
sketch8.addConstraint(Sketcher.Constraint("DistanceX", 0, 3, -1, 1, Q("9.75 in")))
sketch8.addConstraint(Sketcher.Constraint("DistanceY", -1, 1, 0, 3, Q("3.15 in")))
pocket7 = doc.addObject("PartDesign::Pocket", "Pocket006")
body.addObject(pocket7)
pocket7.Profile = sketch8
pocket7.Type = "UpToFirst"
pocket7.Reversed = True

# Sketch on XY plane
sketch9 = doc.addObject("Sketcher::SketchObject", "Sketch008")
body.addObject(sketch9)
sketch9.AttachmentSupport = (doc.XY_Plane, [""])
sketch9.MapMode = "FlatFace"
sketch9.AttachmentOffset = App.Placement(V(0, 0, 0.25 * 25.4), App.Rotation())
sketch9.addGeometry(Part.Circle(V(-247.65, 118.11, 0), V(0, 0, 1), 19.05), False)
sketch9.addGeometry(Part.Circle(V(247.65, 118.11, 0), V(0, 0, 1), 19.05), False)
sketch9.addConstraint(Sketcher.Constraint("Equal", 0, 1))
sketch9.addConstraint(Sketcher.Constraint("Symmetric", 0, 3, 1, 3, -2))
sketch9.addConstraint(Sketcher.Constraint("Diameter", 0, Q("1.5 in")))
sketch9.addConstraint(Sketcher.Constraint("DistanceX", 0, 3, 1, 3, Q("19.5 in")))
sketch9.addConstraint(Sketcher.Constraint("DistanceY", -1, 1, 0, 3, Q("4.65 in")))
pocket8 = doc.addObject("PartDesign::Pocket", "Pocket007")
body.addObject(pocket8)
pocket8.Profile = sketch9
pocket8.Type = "ThroughAll"

# Sketch on XY plane
sketch10 = doc.addObject("Sketcher::SketchObject", "Sketch009")
body.addObject(sketch10)
sketch10.AttachmentSupport = (doc.XY_Plane, [""])
sketch10.MapMode = "FlatFace"
sketch10.AttachmentOffset = App.Placement(V(0, 0, 0.25 * 25.4), App.Rotation())
sketch10.addGeometry(Part.Circle(V(0, 113.03, 0), V(0, 0, 1), 6.35), False)
sketch10.addConstraint(Sketcher.Constraint("PointOnObject", 0, 3, -2))
sketch10.addConstraint(Sketcher.Constraint("Diameter", 0, Q("0.5 in")))
sketch10.addConstraint(Sketcher.Constraint("DistanceY", -1, 1, 0, 3, Q("4.45 in")))
pocket9 = doc.addObject("PartDesign::Pocket", "Pocket008")
body.addObject(pocket9)
pocket9.Profile = sketch10
pocket9.Type = "ThroughAll"

# Sketch on XY plane
sketch11 = doc.addObject("Sketcher::SketchObject", "Sketch010")
body.addObject(sketch11)
sketch11.AttachmentSupport = (doc.XY_Plane, [""])
sketch11.MapMode = "FlatFace"
sketch11.AttachmentOffset = App.Placement(V(0, 0, 0.25 * 25.4), App.Rotation())
sketch11.addGeometry(Part.LineSegment(V(-29.21, 41.275, 0), V(-250.19, 41.275, 0)), False)
sketch11.addGeometry(Part.ArcOfCircle(Part.Circle(V(-250.19, 37.465, 0), V(0, 0, 1), 3.81), math.radians(90), math.radians(180)), False)
sketch11.addGeometry(Part.LineSegment(V(-254, 37.465, 0), V(-254, 32.385, 0)), False)
sketch11.addGeometry(Part.ArcOfCircle(Part.Circle(V(-250.19, 32.385, 0), V(0, 0, 1), 3.81), math.radians(-180), math.radians(-90)), False)
sketch11.addGeometry(Part.LineSegment(V(-250.19, 28.575, 0), V(-29.21, 28.575, 0)), False)
sketch11.addGeometry(Part.ArcOfCircle(Part.Circle(V(-29.21, 32.385, 0), V(0, 0, 1), 3.81), math.radians(-90), math.radians(0)), False)
sketch11.addGeometry(Part.LineSegment(V(-25.4, 32.385, 0), V(-25.4, 37.465, 0)), False)
sketch11.addGeometry(Part.ArcOfCircle(Part.Circle(V(-29.21, 37.465, 0), V(0, 0, 1), 3.81), math.radians(0), math.radians(90)), False)
sketch11.addGeometry(Part.LineSegment(V(254, 32.385, 0), V(254, 37.465, 0)), False)
sketch11.addGeometry(Part.ArcOfCircle(Part.Circle(V(250.19, 37.465, 0), V(0, 0, 1), 3.81), math.radians(0), math.radians(90)), False)
sketch11.addGeometry(Part.LineSegment(V(250.19, 41.275, 0), V(29.21, 41.275, 0)), False)
sketch11.addGeometry(Part.ArcOfCircle(Part.Circle(V(29.21, 37.465, 0), V(0, 0, 1), 3.81), math.radians(90), math.radians(180)), False)
sketch11.addGeometry(Part.LineSegment(V(25.4, 37.465, 0), V(25.4, 32.385, 0)), False)
sketch11.addGeometry(Part.ArcOfCircle(Part.Circle(V(29.21, 32.385, 0), V(0, 0, 1), 3.81), math.radians(-180), math.radians(-90)), False)
sketch11.addGeometry(Part.LineSegment(V(29.21, 28.575, 0), V(250.19, 28.575, 0)), False)
sketch11.addGeometry(Part.ArcOfCircle(Part.Circle(V(250.19, 32.385, 0), V(0, 0, 1), 3.81), math.radians(-90), math.radians(0)), False)
sketch11.addConstraint(Sketcher.Constraint("Tangent", 0, 2, 1, 1))
sketch11.addConstraint(Sketcher.Constraint("Tangent", 1, 2, 2, 1))
sketch11.addConstraint(Sketcher.Constraint("Tangent", 2, 2, 3, 1))
sketch11.addConstraint(Sketcher.Constraint("Tangent", 3, 2, 4, 1))
sketch11.addConstraint(Sketcher.Constraint("Tangent", 4, 2, 5, 1))
sketch11.addConstraint(Sketcher.Constraint("Tangent", 5, 2, 6, 1))
sketch11.addConstraint(Sketcher.Constraint("Tangent", 6, 2, 7, 1))
sketch11.addConstraint(Sketcher.Constraint("Tangent", 7, 2, 0, 1))
sketch11.addConstraint(Sketcher.Constraint("Tangent", 8, 2, 9, 1))
sketch11.addConstraint(Sketcher.Constraint("Tangent", 9, 2, 10, 1))
sketch11.addConstraint(Sketcher.Constraint("Tangent", 10, 2, 11, 1))
sketch11.addConstraint(Sketcher.Constraint("Tangent", 11, 2, 12, 1))
sketch11.addConstraint(Sketcher.Constraint("Tangent", 12, 2, 13, 1))
sketch11.addConstraint(Sketcher.Constraint("Tangent", 13, 2, 14, 1))
sketch11.addConstraint(Sketcher.Constraint("Tangent", 14, 2, 15, 1))
sketch11.addConstraint(Sketcher.Constraint("Tangent", 15, 2, 8, 1))
sketch11.addConstraint(Sketcher.Constraint("Horizontal", 0))
sketch11.addConstraint(Sketcher.Constraint("Vertical", 2))
sketch11.addConstraint(Sketcher.Constraint("Horizontal", 4))
sketch11.addConstraint(Sketcher.Constraint("Vertical", 6))
sketch11.addConstraint(Sketcher.Constraint("Vertical", 8))
sketch11.addConstraint(Sketcher.Constraint("Horizontal", 10))
sketch11.addConstraint(Sketcher.Constraint("Vertical", 12))
sketch11.addConstraint(Sketcher.Constraint("Horizontal", 14))
sketch11.addConstraint(Sketcher.Constraint("Equal", 1, 3))
sketch11.addConstraint(Sketcher.Constraint("Equal", 3, 5))
sketch11.addConstraint(Sketcher.Constraint("Equal", 5, 7))
sketch11.addConstraint(Sketcher.Constraint("Equal", 7, 9))
sketch11.addConstraint(Sketcher.Constraint("Equal", 9, 11))
sketch11.addConstraint(Sketcher.Constraint("Equal", 11, 13))
sketch11.addConstraint(Sketcher.Constraint("Equal", 13, 15))
sketch11.addConstraint(Sketcher.Constraint("Symmetric", 1, 3, 9, 3, -2))
sketch11.addConstraint(Sketcher.Constraint("Symmetric", 5, 3, 13, 3, -2))
sketch11.addConstraint(Sketcher.Constraint("Radius", 1, Q("0.15 in")))
sketch11.addConstraint(Sketcher.Constraint("DistanceX", 0, 2, 0, 1, Q("8.7 in")))
sketch11.addConstraint(Sketcher.Constraint("DistanceY", 2, 2, 2, 1, Q("0.2 in")))
sketch11.addConstraint(Sketcher.Constraint("DistanceX", 1, 2, -1, 1, Q("10 in")))
sketch11.addConstraint(Sketcher.Constraint("DistanceY", -1, 1, 1, 3, Q("1.475 in")))
pocket10 = doc.addObject("PartDesign::Pocket", "Pocket009")
body.addObject(pocket10)
pocket10.Profile = sketch11
pocket10.Type = "ThroughAll"

doc.recompute()
